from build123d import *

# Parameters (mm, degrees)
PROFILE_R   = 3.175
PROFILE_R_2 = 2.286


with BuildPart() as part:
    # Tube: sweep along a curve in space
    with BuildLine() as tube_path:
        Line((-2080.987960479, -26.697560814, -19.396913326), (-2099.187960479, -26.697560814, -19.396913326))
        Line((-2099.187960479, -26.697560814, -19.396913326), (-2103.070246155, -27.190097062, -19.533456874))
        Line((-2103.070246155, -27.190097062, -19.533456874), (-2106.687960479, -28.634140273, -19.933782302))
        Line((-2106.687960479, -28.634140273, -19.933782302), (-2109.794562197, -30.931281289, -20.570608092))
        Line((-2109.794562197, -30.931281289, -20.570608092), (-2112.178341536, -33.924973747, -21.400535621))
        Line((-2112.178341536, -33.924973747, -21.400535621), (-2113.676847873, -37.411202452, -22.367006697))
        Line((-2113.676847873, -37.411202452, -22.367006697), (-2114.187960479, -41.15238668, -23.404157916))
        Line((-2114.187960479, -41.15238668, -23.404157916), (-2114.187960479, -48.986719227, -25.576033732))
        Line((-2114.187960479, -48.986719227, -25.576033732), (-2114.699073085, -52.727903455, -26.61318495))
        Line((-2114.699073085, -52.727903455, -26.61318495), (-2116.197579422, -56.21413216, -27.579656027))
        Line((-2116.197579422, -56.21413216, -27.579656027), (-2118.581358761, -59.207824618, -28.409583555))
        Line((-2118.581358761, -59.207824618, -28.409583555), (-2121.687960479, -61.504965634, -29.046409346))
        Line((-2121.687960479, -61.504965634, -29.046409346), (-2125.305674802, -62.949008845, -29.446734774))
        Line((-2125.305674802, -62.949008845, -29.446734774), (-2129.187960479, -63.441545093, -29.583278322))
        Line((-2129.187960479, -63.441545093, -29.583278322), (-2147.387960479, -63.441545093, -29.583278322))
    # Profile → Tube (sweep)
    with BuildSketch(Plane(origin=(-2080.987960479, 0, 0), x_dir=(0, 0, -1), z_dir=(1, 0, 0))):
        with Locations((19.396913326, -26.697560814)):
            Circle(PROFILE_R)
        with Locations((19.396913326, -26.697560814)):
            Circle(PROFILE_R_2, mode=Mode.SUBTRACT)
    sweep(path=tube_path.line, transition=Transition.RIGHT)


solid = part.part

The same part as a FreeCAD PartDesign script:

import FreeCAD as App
import Part
import Sketcher

V = App.Vector
Q = App.Units.Quantity

doc = App.newDocument("Part")
body = doc.addObject("PartDesign::Body", "Body")

# Sketch on YZ plane
sketch1 = body.newObject("Sketcher::SketchObject", "Sketch")
sketch1.AttachmentSupport = (doc.getObject("YZ_Plane"), [""])
sketch1.MapMode = "FlatFace"
sketch1.AttachmentOffset = App.Placement(V(0, 0, -2080.98796), App.Rotation())
sketch1.addGeometry(Part.Circle(V(-26.697561, -19.396913, 0), V(0, 0, 1), 3.175), False)
sketch1.addGeometry(Part.Circle(V(-26.697561, -19.396913, 0), V(0, 0, 1), 2.286), False)
sketch1.addConstraint(Sketcher.Constraint("Coincident", 1, 3, 0, 3))
sketch1.addConstraint(Sketcher.Constraint("Diameter", 0, Q("0.25 in")))
sketch1.addConstraint(Sketcher.Constraint("Diameter", 1, Q("0.18 in")))
sketch1.addConstraint(Sketcher.Constraint("DistanceX", 0, 3, -1, 1, Q("26.697561 mm")))
sketch1.addConstraint(Sketcher.Constraint("DistanceY", 0, 3, -1, 1, Q("19.396913 mm")))

# Sketch on an angled plane
sketch2 = body.newObject("Sketcher::SketchObject", "Sketch001")
sketch2.Placement = App.Placement(V(0, 3.088167, -11.139554), App.Rotation(V(0, -0.963655058, -0.267149639), V(1, 0, 0), V(0, -0.267149639, 0.963655058), "ZXY"))
sketch2.addGeometry(Part.LineSegment(V(30.909118, -2080.987962, 0), V(30.909118, -2099.187962, 0)), False)
sketch2.addGeometry(Part.LineSegment(V(30.909118, -2099.187962, 0), V(31.420231, -2103.070248, 0)), False)
sketch2.addGeometry(Part.LineSegment(V(31.420231, -2103.070248, 0), V(32.918737, -2106.687962, 0)), False)
sketch2.addGeometry(Part.LineSegment(V(32.918737, -2106.687962, 0), V(35.302516, -2109.794564, 0)), False)
sketch2.addGeometry(Part.LineSegment(V(35.302516, -2109.794564, 0), V(38.409118, -2112.178343, 0)), False)
sketch2.addGeometry(Part.LineSegment(V(38.409118, -2112.178343, 0), V(42.026832, -2113.67685, 0)), False)
sketch2.addGeometry(Part.LineSegment(V(42.026832, -2113.67685, 0), V(45.909118, -2114.187962, 0)), False)
sketch2.addGeometry(Part.LineSegment(V(45.909118, -2114.187962, 0), V(54.038928, -2114.187962, 0)), False)
sketch2.addGeometry(Part.LineSegment(V(54.038928, -2114.187962, 0), V(57.921214, -2114.699075, 0)), False)
sketch2.addGeometry(Part.LineSegment(V(57.921214, -2114.699075, 0), V(61.538928, -2116.197581, 0)), False)
sketch2.addGeometry(Part.LineSegment(V(61.538928, -2116.197581, 0), V(64.64553, -2118.581361, 0)), False)
sketch2.addGeometry(Part.LineSegment(V(64.64553, -2118.581361, 0), V(67.029309, -2121.687962, 0)), False)
sketch2.addGeometry(Part.LineSegment(V(67.029309, -2121.687962, 0), V(68.527815, -2125.305677, 0)), False)
sketch2.addGeometry(Part.LineSegment(V(68.527815, -2125.305677, 0), V(69.038928, -2129.187962, 0)), False)
sketch2.addGeometry(Part.LineSegment(V(69.038928, -2129.187962, 0), V(69.038928, -2147.387962, 0)), False)
sketch2.addConstraint(Sketcher.Constraint("Coincident", 0, 2, 1, 1))
sketch2.addConstraint(Sketcher.Constraint("Coincident", 1, 2, 2, 1))
sketch2.addConstraint(Sketcher.Constraint("Coincident", 2, 2, 3, 1))
sketch2.addConstraint(Sketcher.Constraint("Coincident", 3, 2, 4, 1))
sketch2.addConstraint(Sketcher.Constraint("Coincident", 4, 2, 5, 1))
sketch2.addConstraint(Sketcher.Constraint("Coincident", 5, 2, 6, 1))
sketch2.addConstraint(Sketcher.Constraint("Coincident", 6, 2, 7, 1))
sketch2.addConstraint(Sketcher.Constraint("Coincident", 7, 2, 8, 1))
sketch2.addConstraint(Sketcher.Constraint("Coincident", 8, 2, 9, 1))
sketch2.addConstraint(Sketcher.Constraint("Coincident", 9, 2, 10, 1))
sketch2.addConstraint(Sketcher.Constraint("Coincident", 10, 2, 11, 1))
sketch2.addConstraint(Sketcher.Constraint("Coincident", 11, 2, 12, 1))
sketch2.addConstraint(Sketcher.Constraint("Coincident", 12, 2, 13, 1))
sketch2.addConstraint(Sketcher.Constraint("Coincident", 13, 2, 14, 1))
sketch2.addConstraint(Sketcher.Constraint("Vertical", 0))
sketch2.addConstraint(Sketcher.Constraint("Horizontal", 7))
sketch2.addConstraint(Sketcher.Constraint("Vertical", 14))
sketch2.addConstraint(Sketcher.Constraint("Parallel", 6, 8))
sketch2.addConstraint(Sketcher.Constraint("Parallel", 5, 9))
sketch2.addConstraint(Sketcher.Constraint("Parallel", 4, 10))
sketch2.addConstraint(Sketcher.Constraint("Parallel", 3, 11))
sketch2.addConstraint(Sketcher.Constraint("Parallel", 2, 12))
sketch2.addConstraint(Sketcher.Constraint("Parallel", 1, 13))
sketch2.addConstraint(Sketcher.Constraint("Equal", 0, 14))
sketch2.addConstraint(Sketcher.Constraint("Equal", 1, 2))
sketch2.addConstraint(Sketcher.Constraint("Equal", 2, 3))
sketch2.addConstraint(Sketcher.Constraint("Equal", 3, 4))
sketch2.addConstraint(Sketcher.Constraint("Equal", 4, 5))
sketch2.addConstraint(Sketcher.Constraint("Equal", 5, 6))
sketch2.addConstraint(Sketcher.Constraint("Equal", 6, 8))
sketch2.addConstraint(Sketcher.Constraint("Equal", 8, 9))
sketch2.addConstraint(Sketcher.Constraint("Equal", 9, 10))
sketch2.addConstraint(Sketcher.Constraint("Equal", 10, 11))
sketch2.addConstraint(Sketcher.Constraint("Equal", 11, 12))
sketch2.addConstraint(Sketcher.Constraint("Equal", 12, 13))
sketch2.addConstraint(Sketcher.Constraint("Angle", 1, Q("-82.5 deg")))
sketch2.addConstraint(Sketcher.Constraint("Angle", 2, Q("-67.5 deg")))
sketch2.addConstraint(Sketcher.Constraint("Angle", 3, Q("-52.5 deg")))
sketch2.addConstraint(Sketcher.Constraint("Angle", 4, Q("-37.5 deg")))
sketch2.addConstraint(Sketcher.Constraint("Angle", 5, Q("-22.5 deg")))
sketch2.addConstraint(Sketcher.Constraint("Angle", 6, Q("-7.5 deg")))
sketch2.addConstraint(Sketcher.Constraint("DistanceY", 0, 2, 0, 1, Q("18.2 mm")))
sketch2.addConstraint(Sketcher.Constraint("DistanceX", 3, 2, 8, 2, Q("0.8904999 in")))
sketch2.addConstraint(Sketcher.Constraint("DistanceX", 7, 1, 7, 2, Q("8.12981 mm")))
sketch2.addConstraint(Sketcher.Constraint("DistanceX", -1, 1, 1, 2, Q("31.420231 mm")))
sketch2.addConstraint(Sketcher.Constraint("DistanceY", 5, 2, -1, 1, Q("2113.67685 mm")))
doc.recompute()

additivepipe = body.newObject("PartDesign::AdditivePipe", "AdditivePipe")
additivepipe.Profile = sketch1
additivepipe.Spine = (sketch2, ["Edge1", "Edge2", "Edge3", "Edge4", "Edge5", "Edge6", "Edge7", "Edge8", "Edge9", "Edge10", "Edge11", "Edge12", "Edge13", "Edge14", "Edge15"])
additivepipe.Transition = "Right corner"

doc.recompute()
